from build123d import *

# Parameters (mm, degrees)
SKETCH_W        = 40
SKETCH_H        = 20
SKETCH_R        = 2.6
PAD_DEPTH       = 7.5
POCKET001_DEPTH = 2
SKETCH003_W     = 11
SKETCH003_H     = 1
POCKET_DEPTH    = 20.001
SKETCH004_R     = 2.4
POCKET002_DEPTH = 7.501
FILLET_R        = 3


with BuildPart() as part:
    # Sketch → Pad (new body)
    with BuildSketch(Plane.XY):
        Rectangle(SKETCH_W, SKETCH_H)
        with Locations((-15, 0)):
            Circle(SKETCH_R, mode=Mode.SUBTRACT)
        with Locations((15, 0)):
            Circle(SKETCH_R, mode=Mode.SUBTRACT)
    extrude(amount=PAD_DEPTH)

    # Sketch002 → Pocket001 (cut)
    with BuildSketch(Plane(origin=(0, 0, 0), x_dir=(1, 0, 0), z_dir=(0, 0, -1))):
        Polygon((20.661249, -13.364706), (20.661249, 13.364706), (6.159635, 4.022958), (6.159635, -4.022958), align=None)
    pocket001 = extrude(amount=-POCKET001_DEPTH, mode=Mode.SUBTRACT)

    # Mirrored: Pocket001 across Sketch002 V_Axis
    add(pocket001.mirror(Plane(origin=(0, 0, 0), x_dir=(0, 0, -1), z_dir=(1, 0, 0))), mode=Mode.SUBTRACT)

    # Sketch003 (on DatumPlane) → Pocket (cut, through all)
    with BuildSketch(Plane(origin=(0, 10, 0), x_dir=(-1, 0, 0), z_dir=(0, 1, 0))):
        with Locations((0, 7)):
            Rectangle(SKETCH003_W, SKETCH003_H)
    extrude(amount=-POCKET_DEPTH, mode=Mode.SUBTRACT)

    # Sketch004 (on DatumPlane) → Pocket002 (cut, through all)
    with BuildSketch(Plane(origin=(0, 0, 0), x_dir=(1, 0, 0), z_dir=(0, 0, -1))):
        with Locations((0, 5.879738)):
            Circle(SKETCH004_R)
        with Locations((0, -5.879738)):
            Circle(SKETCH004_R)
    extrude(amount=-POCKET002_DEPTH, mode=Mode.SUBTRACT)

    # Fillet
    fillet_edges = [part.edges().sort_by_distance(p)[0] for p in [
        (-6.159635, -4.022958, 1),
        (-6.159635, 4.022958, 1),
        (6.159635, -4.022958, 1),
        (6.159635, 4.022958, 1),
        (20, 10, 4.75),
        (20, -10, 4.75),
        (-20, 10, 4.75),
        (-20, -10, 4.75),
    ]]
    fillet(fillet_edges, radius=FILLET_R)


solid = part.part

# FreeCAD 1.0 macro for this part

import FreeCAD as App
import Part
import Sketcher

V = App.Vector
Q = App.Units.Quantity


def edges_at(feature, points):
    """Names of the edges that pass closest to the given points."""
    edges = feature.Shape.Edges
    near = lambda p: min(range(len(edges)), key=lambda i: edges[i].distToShape(Part.Vertex(*p))[0])
    return sorted({f"Edge{near(p) + 1}" for p in points})

doc = App.newDocument("Part")
params = doc.addObject("Spreadsheet::Sheet", "Params")
for row, (alias, value) in enumerate([
    ("sketch1_diameter", "5.2 mm"),
    ("sketch1_width", "40 mm"),
    ("sketch1_height", "20 mm"),
    ("pad1_length", "7.5 mm"),
    ("pocket1_length", "2 mm"),
    ("sketch3_width", "11 mm"),
    ("sketch3_height", "1 mm"),
    ("sketch4_diameter", "4.8 mm"),
    ("fillet_radius", "3 mm"),
], start=1):
    params.set(f"A{row}", alias)
    params.set(f"B{row}", "=" + value)
    params.setAlias(f"B{row}", alias)

body = doc.addObject("PartDesign::Body", "Body")

# Sketch on XY plane
sketch1 = body.newObject("Sketcher::SketchObject", "Sketch")
sketch1.AttachmentSupport = (doc.getObject("XY_Plane"), [""])
sketch1.MapMode = "FlatFace"
sketch1.addGeometry(Part.LineSegment(V(-20, 10, 0), V(-20, -10, 0)), False)
sketch1.addGeometry(Part.LineSegment(V(-20, -10, 0), V(20, -10, 0)), False)
sketch1.addGeometry(Part.LineSegment(V(20, -10, 0), V(20, 10, 0)), False)
sketch1.addGeometry(Part.LineSegment(V(20, 10, 0), V(-20, 10, 0)), False)
sketch1.addGeometry(Part.Circle(V(-15, 0, 0), V(0, 0, 1), 2.6), False)
sketch1.addGeometry(Part.Circle(V(15, 0, 0), V(0, 0, 1), 2.6), False)
sketch1.addConstraint(Sketcher.Constraint("Coincident", 0, 2, 1, 1))
sketch1.addConstraint(Sketcher.Constraint("Coincident", 1, 2, 2, 1))
sketch1.addConstraint(Sketcher.Constraint("Coincident", 2, 2, 3, 1))
sketch1.addConstraint(Sketcher.Constraint("Coincident", 3, 2, 0, 1))
sketch1.addConstraint(Sketcher.Constraint("Vertical", 0))
sketch1.addConstraint(Sketcher.Constraint("Horizontal", 1))
sketch1.addConstraint(Sketcher.Constraint("Vertical", 2))
sketch1.addConstraint(Sketcher.Constraint("Horizontal", 3))
sketch1.addConstraint(Sketcher.Constraint("Equal", 4, 5))
sketch1.addConstraint(Sketcher.Constraint("Symmetric", 4, 3, 5, 3, -1, 1))
sketch1.addConstraint(Sketcher.Constraint("Symmetric", 0, 2, 2, 2, -1, 1))
sketch1.addConstraint(Sketcher.Constraint("PointOnObject", 4, 3, -1))
sketch1.addConstraint(Sketcher.Constraint("Diameter", 4, Q("5.2 mm")))
sketch1.addConstraint(Sketcher.Constraint("DistanceX", 1, 1, 1, 2, Q("40 mm")))
sketch1.addConstraint(Sketcher.Constraint("DistanceY", 0, 2, 0, 1, Q("20 mm")))
sketch1.addConstraint(Sketcher.Constraint("DistanceX", 4, 3, -1, 1, Q("15 mm")))
sketch1.setExpression("Constraints[12]", "Params.sketch1_diameter")
sketch1.setExpression("Constraints[13]", "Params.sketch1_width")
sketch1.setExpression("Constraints[14]", "Params.sketch1_height")
pad1 = body.newObject("PartDesign::Pad", "Pad")
pad1.Profile = sketch1
pad1.setExpression("Length", "Params.pad1_length")

# Sketch on XY plane
sketch2 = body.newObject("Sketcher::SketchObject", "Sketch001")
sketch2.AttachmentSupport = (doc.getObject("XY_Plane"), [""])
sketch2.MapMode = "FlatFace"
sketch2.addGeometry(Part.LineSegment(V(20.661249, 13.364706, 0), V(20.661249, -13.364706, 0)), False)
sketch2.addGeometry(Part.LineSegment(V(20.661249, -13.364706, 0), V(6.159635, -4.022958, 0)), False)
sketch2.addGeometry(Part.LineSegment(V(6.159635, -4.022958, 0), V(6.159635, 4.022958, 0)), False)
sketch2.addGeometry(Part.LineSegment(V(6.159635, 4.022958, 0), V(20.661249, 13.364706, 0)), False)
sketch2.addConstraint(Sketcher.Constraint("Coincident", 0, 2, 1, 1))
sketch2.addConstraint(Sketcher.Constraint("Coincident", 1, 2, 2, 1))
sketch2.addConstraint(Sketcher.Constraint("Coincident", 2, 2, 3, 1))
sketch2.addConstraint(Sketcher.Constraint("Coincident", 3, 2, 0, 1))
sketch2.addConstraint(Sketcher.Constraint("Vertical", 0))
sketch2.addConstraint(Sketcher.Constraint("Vertical", 2))
sketch2.addConstraint(Sketcher.Constraint("Equal", 1, 3))
sketch2.addConstraint(Sketcher.Constraint("DistanceY", 0, 2, 0, 1, Q("26.729412 mm")))
sketch2.addConstraint(Sketcher.Constraint("DistanceY", 2, 1, 2, 2, Q("8.045916 mm")))
sketch2.addConstraint(Sketcher.Constraint("DistanceX", -1, 1, 0, 2, Q("20.661249 mm")))
sketch2.addConstraint(Sketcher.Constraint("Distance", 1, Q("17.250074 mm")))
sketch2.addConstraint(Sketcher.Constraint("DistanceY", 0, 2, -1, 1, Q("13.364706 mm")))
pocket1 = body.newObject("PartDesign::Pocket", "Pocket")
pocket1.Profile = sketch2
pocket1.setExpression("Length", "Params.pocket1_length")
pocket1.Reversed = True
doc.recompute()

mirrored = body.newObject("PartDesign::Mirrored", "Mirrored")
mirrored.Originals = [pocket1]
mirrored.MirrorPlane = (doc.getObject("YZ_Plane"), [""])
body.Tip = mirrored

# Sketch on XZ plane
sketch3 = body.newObject("Sketcher::SketchObject", "Sketch002")
sketch3.AttachmentSupport = (doc.getObject("XZ_Plane"), [""])
sketch3.MapMode = "FlatFace"
sketch3.AttachmentOffset = App.Placement(V(0, 0, -10), App.Rotation())
sketch3.addGeometry(Part.LineSegment(V(5.5, 7.5, 0), V(5.5, 6.5, 0)), False)
sketch3.addGeometry(Part.LineSegment(V(5.5, 6.5, 0), V(-5.5, 6.5, 0)), False)
sketch3.addGeometry(Part.LineSegment(V(-5.5, 6.5, 0), V(-5.5, 7.5, 0)), False)
sketch3.addGeometry(Part.LineSegment(V(-5.5, 7.5, 0), V(5.5, 7.5, 0)), False)
sketch3.addConstraint(Sketcher.Constraint("Coincident", 0, 2, 1, 1))
sketch3.addConstraint(Sketcher.Constraint("Coincident", 1, 2, 2, 1))
sketch3.addConstraint(Sketcher.Constraint("Coincident", 2, 2, 3, 1))
sketch3.addConstraint(Sketcher.Constraint("Coincident", 3, 2, 0, 1))
sketch3.addConstraint(Sketcher.Constraint("Vertical", 0))
sketch3.addConstraint(Sketcher.Constraint("Horizontal", 1))
sketch3.addConstraint(Sketcher.Constraint("Vertical", 2))
sketch3.addConstraint(Sketcher.Constraint("Horizontal", 3))
sketch3.addConstraint(Sketcher.Constraint("DistanceX", 1, 2, 1, 1, Q("11 mm")))
sketch3.addConstraint(Sketcher.Constraint("DistanceY", 0, 2, 0, 1, Q("1 mm")))
sketch3.addConstraint(Sketcher.Constraint("DistanceX", -1, 1, 0, 2, Q("5.5 mm")))
sketch3.addConstraint(Sketcher.Constraint("DistanceY", -1, 1, 0, 2, Q("6.5 mm")))
sketch3.setExpression("Constraints[8]", "Params.sketch3_width")
sketch3.setExpression("Constraints[9]", "Params.sketch3_height")
pocket2 = body.newObject("PartDesign::Pocket", "Pocket001")
pocket2.Profile = sketch3
pocket2.Type = "ThroughAll"
pocket2.Reversed = True

# Sketch on XY plane
sketch4 = body.newObject("Sketcher::SketchObject", "Sketch003")
sketch4.AttachmentSupport = (doc.getObject("XY_Plane"), [""])
sketch4.MapMode = "FlatFace"
sketch4.addGeometry(Part.Circle(V(0, -5.879738, 0), V(0, 0, 1), 2.4), False)
sketch4.addGeometry(Part.Circle(V(0, 5.879738, 0), V(0, 0, 1), 2.4), False)
sketch4.addConstraint(Sketcher.Constraint("Equal", 0, 1))
sketch4.addConstraint(Sketcher.Constraint("Symmetric", 0, 3, 1, 3, -1, 1))
sketch4.addConstraint(Sketcher.Constraint("PointOnObject", 0, 3, -2))
sketch4.addConstraint(Sketcher.Constraint("Diameter", 0, Q("4.8 mm")))
sketch4.addConstraint(Sketcher.Constraint("DistanceY", 0, 3, -1, 1, Q("5.879738 mm")))
sketch4.setExpression("Constraints[3]", "Params.sketch4_diameter")
pocket3 = body.newObject("PartDesign::Pocket", "Pocket002")
pocket3.Profile = sketch4
pocket3.Type = "ThroughAll"
pocket3.Reversed = True
doc.recompute()

fillet = body.newObject("PartDesign::Fillet", "Fillet")
fillet.Base = (pocket3, edges_at(pocket3, [
    (-6.16, -4.023, 1),
    (-6.16, 4.023, 1),
    (6.16, -4.023, 1),
    (6.16, 4.023, 1),
    (20, 10, 4.75),
    (20, -10, 4.75),
    (-20, 10, 4.75),
    (-20, -10, 4.75),
]))
fillet.setExpression("Radius", "Params.fillet_radius")

doc.recompute()
